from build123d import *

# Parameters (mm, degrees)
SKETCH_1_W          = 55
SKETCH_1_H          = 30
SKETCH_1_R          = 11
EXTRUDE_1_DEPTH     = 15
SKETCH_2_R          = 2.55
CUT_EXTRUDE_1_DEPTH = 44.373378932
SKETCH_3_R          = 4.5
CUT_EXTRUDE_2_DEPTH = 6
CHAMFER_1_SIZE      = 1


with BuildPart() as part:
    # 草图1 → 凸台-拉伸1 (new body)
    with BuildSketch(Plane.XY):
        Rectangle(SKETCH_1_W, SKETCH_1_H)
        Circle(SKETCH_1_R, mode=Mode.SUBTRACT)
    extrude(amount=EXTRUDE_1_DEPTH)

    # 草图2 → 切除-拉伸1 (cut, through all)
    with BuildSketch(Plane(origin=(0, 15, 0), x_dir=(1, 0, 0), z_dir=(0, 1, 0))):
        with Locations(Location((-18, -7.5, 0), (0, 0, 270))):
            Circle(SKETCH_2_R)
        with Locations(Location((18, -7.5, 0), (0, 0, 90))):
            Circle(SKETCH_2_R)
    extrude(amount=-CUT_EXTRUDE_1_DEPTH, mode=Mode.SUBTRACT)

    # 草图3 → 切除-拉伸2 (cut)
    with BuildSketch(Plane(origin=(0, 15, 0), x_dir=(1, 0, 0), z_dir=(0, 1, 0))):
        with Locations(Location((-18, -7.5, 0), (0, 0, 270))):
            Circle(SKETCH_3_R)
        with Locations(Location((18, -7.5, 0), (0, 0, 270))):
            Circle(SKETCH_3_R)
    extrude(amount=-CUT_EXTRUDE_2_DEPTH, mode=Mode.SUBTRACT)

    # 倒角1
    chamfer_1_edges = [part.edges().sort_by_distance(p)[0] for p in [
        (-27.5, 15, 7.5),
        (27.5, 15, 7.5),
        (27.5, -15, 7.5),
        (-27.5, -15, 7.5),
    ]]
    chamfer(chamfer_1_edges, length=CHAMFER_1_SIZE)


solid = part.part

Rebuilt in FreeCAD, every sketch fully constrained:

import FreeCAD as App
import Part
import Sketcher

V = App.Vector


def edges_at(feature, points):
    """Names of the edges that pass closest to the given points."""
    edges = feature.Shape.Edges
    near = lambda p: min(range(len(edges)), key=lambda i: edges[i].distToShape(Part.Vertex(*p))[0])
    return sorted({f"Edge{near(p) + 1}" for p in points})

doc = App.newDocument("Part")
params = doc.addObject("Spreadsheet::Sheet", "Params")
for row, (alias, value) in enumerate([
    ("sketch1_diameter", "22 mm"),
    ("sketch1_width", "55 mm"),
    ("sketch1_height", "30 mm"),
    ("pad1_length", "15 mm"),
    ("sketch2_diameter", "5.1 mm"),
    ("sketch3_diameter", "9 mm"),
    ("pocket2_length", "6 mm"),
    ("chamfer_size", "1 mm"),
], start=1):
    params.set(f"A{row}", alias)
    params.set(f"B{row}", "=" + value)
    params.setAlias(f"B{row}", alias)

body = doc.addObject("PartDesign::Body", "Body")

# Sketch on XY plane
sketch1 = body.newObject("Sketcher::SketchObject", "Sketch")
sketch1.AttachmentSupport = (doc.getObject("XY_Plane"), [""])
sketch1.MapMode = "FlatFace"
sketch1.addGeometry([
    Part.LineSegment(V(-28, 15, 0), V(-28, -15, 0)),  # 0
    Part.LineSegment(V(-28, -15, 0), V(28, -15, 0)),  # 1
    Part.LineSegment(V(28, -15, 0), V(28, 15, 0)),  # 2
    Part.LineSegment(V(28, 15, 0), V(-28, 15, 0)),  # 3
    Part.Circle(V(0, 0, 0), V(0, 0, 1), 11),  # 4
], False)
sketch1.addConstraint([
    Sketcher.Constraint("Coincident", 0, 2, 1, 1),
    Sketcher.Constraint("Coincident", 1, 2, 2, 1),
    Sketcher.Constraint("Coincident", 2, 2, 3, 1),
    Sketcher.Constraint("Coincident", 3, 2, 0, 1),
    Sketcher.Constraint("Vertical", 0),
    Sketcher.Constraint("Horizontal", 1),
    Sketcher.Constraint("Vertical", 2),
    Sketcher.Constraint("Horizontal", 3),
    Sketcher.Constraint("Coincident", 4, 3, -1, 1),
    Sketcher.Constraint("Symmetric", 0, 2, 2, 2, -1, 1),
    Sketcher.Constraint("Diameter", 4, 22.0),
    Sketcher.Constraint("DistanceX", 1, 1, 1, 2, 55.0),
    Sketcher.Constraint("DistanceY", 0, 2, 0, 1, 30.0),
])
sketch1.setExpression("Constraints[10]", "Params.sketch1_diameter")
sketch1.setExpression("Constraints[11]", "Params.sketch1_width")
sketch1.setExpression("Constraints[12]", "Params.sketch1_height")
pad1 = body.newObject("PartDesign::Pad", "Pad")
pad1.Profile = sketch1
pad1.setExpression("Length", "Params.pad1_length")

# Sketch on XZ plane
sketch2 = body.newObject("Sketcher::SketchObject", "Sketch001")
sketch2.AttachmentSupport = (doc.getObject("XZ_Plane"), [""])
sketch2.MapMode = "FlatFace"
sketch2.AttachmentOffset = App.Placement(V(0, 0, -15), App.Rotation())
sketch2.addGeometry([
    Part.Circle(V(-18, 7.5, 0), V(0, 0, 1), 2.5),
    Part.Circle(V(18, 7.5, 0), V(0, 0, 1), 2.5),
], False)
sketch2.addConstraint([
    Sketcher.Constraint("Equal", 0, 1),
    Sketcher.Constraint("Symmetric", 0, 3, 1, 3, -2),
    Sketcher.Constraint("Diameter", 0, 5.1),
    Sketcher.Constraint("DistanceX", 0, 3, -1, 1, 18.0),
    Sketcher.Constraint("DistanceY", -1, 1, 0, 3, 7.5),
])
sketch2.setExpression("Constraints[2]", "Params.sketch2_diameter")
pocket1 = body.newObject("PartDesign::Pocket", "Pocket")
pocket1.Profile = sketch2
pocket1.Type = "ThroughAll"
pocket1.Reversed = True

# Sketch on XZ plane
sketch3 = body.newObject("Sketcher::SketchObject", "Sketch002")
sketch3.AttachmentSupport = (doc.getObject("XZ_Plane"), [""])
sketch3.MapMode = "FlatFace"
sketch3.AttachmentOffset = App.Placement(V(0, 0, -15), App.Rotation())
sketch3.addGeometry([
    Part.Circle(V(-18, 7.5, 0), V(0, 0, 1), 4.5),
    Part.Circle(V(18, 7.5, 0), V(0, 0, 1), 4.5),
], False)
sketch3.addConstraint([
    Sketcher.Constraint("Equal", 0, 1),
    Sketcher.Constraint("Symmetric", 0, 3, 1, 3, -2),
    Sketcher.Constraint("Diameter", 0, 9.0),
    Sketcher.Constraint("DistanceX", 0, 3, -1, 1, 18.0),
    Sketcher.Constraint("DistanceY", -1, 1, 0, 3, 7.5),
])
sketch3.setExpression("Constraints[2]", "Params.sketch3_diameter")
pocket2 = body.newObject("PartDesign::Pocket", "Pocket001")
pocket2.Profile = sketch3
pocket2.setExpression("Length", "Params.pocket2_length")
pocket2.Reversed = True
doc.recompute()

chamfer = body.newObject("PartDesign::Chamfer", "Chamfer")
chamfer.Base = (pocket2, edges_at(pocket2, [
    (-27.5, 15, 7.5),
    (27.5, 15, 7.5),
    (27.5, -15, 7.5),
    (-27.5, -15, 7.5),
]))
chamfer.setExpression("Size", "Params.chamfer_size")

doc.recompute()
